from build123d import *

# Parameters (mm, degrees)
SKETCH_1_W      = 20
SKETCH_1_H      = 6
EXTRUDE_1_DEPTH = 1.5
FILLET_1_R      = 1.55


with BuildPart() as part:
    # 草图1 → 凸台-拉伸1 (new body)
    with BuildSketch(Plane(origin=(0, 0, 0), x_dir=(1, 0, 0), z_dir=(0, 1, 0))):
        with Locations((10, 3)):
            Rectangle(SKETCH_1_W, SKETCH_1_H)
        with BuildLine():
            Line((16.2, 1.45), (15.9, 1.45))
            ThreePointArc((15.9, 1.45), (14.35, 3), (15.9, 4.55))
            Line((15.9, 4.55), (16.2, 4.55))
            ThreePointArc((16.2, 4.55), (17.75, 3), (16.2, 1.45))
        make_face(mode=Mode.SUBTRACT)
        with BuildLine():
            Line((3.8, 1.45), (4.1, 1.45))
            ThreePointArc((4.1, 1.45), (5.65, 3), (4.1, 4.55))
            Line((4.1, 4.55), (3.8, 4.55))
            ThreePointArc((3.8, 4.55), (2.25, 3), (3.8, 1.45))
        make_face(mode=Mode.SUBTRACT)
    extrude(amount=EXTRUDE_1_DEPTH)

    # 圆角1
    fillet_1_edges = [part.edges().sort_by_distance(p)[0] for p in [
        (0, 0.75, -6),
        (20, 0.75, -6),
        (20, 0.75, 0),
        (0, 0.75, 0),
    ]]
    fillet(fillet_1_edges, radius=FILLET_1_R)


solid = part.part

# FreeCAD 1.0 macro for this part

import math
import FreeCAD as App
import Part
import Sketcher

V = App.Vector
Q = App.Units.Quantity


def edges_at(feature, points):
    """Names of the edges that pass closest to the given points."""
    edges = feature.Shape.Edges
    near = lambda p: min(range(len(edges)), key=lambda i: edges[i].distToShape(Part.Vertex(*p))[0])
    return sorted({f"Edge{near(p) + 1}" for p in points})

doc = App.newDocument("Part")
body = doc.addObject("PartDesign::Body", "Body")

# Sketch on XZ plane
sketch1 = body.newObject("Sketcher::SketchObject", "Sketch")
sketch1.AttachmentSupport = (doc.getObject("XZ_Plane"), [""])
sketch1.MapMode = "FlatFace"
sketch1.addGeometry([
    Part.LineSegment(V(0, -6, 0), V(0, 0, 0)),  # 0
    Part.LineSegment(V(0, 0, 0), V(20, 0, 0)),  # 1
    Part.LineSegment(V(20, 0, 0), V(20, -6, 0)),  # 2
    Part.LineSegment(V(20, -6, 0), V(0, -6, 0)),  # 3
    Part.LineSegment(V(4.1, -1.45, 0), V(3.8, -1.45, 0)),  # 4
    Part.ArcOfCircle(Part.Circle(V(3.8, -3, 0), V(0, 0, 1), 1.55), math.radians(90), math.radians(270)),  # 5
    Part.LineSegment(V(3.8, -4.55, 0), V(4.1, -4.55, 0)),  # 6
    Part.ArcOfCircle(Part.Circle(V(4.1, -3, 0), V(0, 0, 1), 1.55), math.radians(-90), math.radians(90)),  # 7
    Part.ArcOfCircle(Part.Circle(V(16.2, -3, 0), V(0, 0, 1), 1.55), math.radians(-90), math.radians(90)),  # 8
    Part.LineSegment(V(16.2, -1.45, 0), V(15.9, -1.45, 0)),  # 9
    Part.ArcOfCircle(Part.Circle(V(15.9, -3, 0), V(0, 0, 1), 1.55), math.radians(90), math.radians(270)),  # 10
    Part.LineSegment(V(15.9, -4.55, 0), V(16.2, -4.55, 0)),  # 11
], False)
sketch1.addConstraint([
    Sketcher.Constraint("Coincident", 0, 2, 1, 1),
    Sketcher.Constraint("Coincident", 1, 2, 2, 1),
    Sketcher.Constraint("Coincident", 2, 2, 3, 1),
    Sketcher.Constraint("Coincident", 3, 2, 0, 1),
    Sketcher.Constraint("Tangent", 4, 2, 5, 1),
    Sketcher.Constraint("Tangent", 5, 2, 6, 1),
    Sketcher.Constraint("Tangent", 6, 2, 7, 1),
    Sketcher.Constraint("Tangent", 7, 2, 4, 1),
    Sketcher.Constraint("Tangent", 8, 2, 9, 1),
    Sketcher.Constraint("Tangent", 9, 2, 10, 1),
    Sketcher.Constraint("Tangent", 10, 2, 11, 1),
    Sketcher.Constraint("Tangent", 11, 2, 8, 1),
    Sketcher.Constraint("Vertical", 0),
    Sketcher.Constraint("Horizontal", 1),
    Sketcher.Constraint("Vertical", 2),
    Sketcher.Constraint("Horizontal", 3),
    Sketcher.Constraint("Horizontal", 4),
    Sketcher.Constraint("Horizontal", 6),
    Sketcher.Constraint("Horizontal", 9),
    Sketcher.Constraint("Horizontal", 11),
    Sketcher.Constraint("Coincident", 0, 2, -1, 1),
    Sketcher.Constraint("Equal", 7, 8),
    Sketcher.Constraint("Horizontal", 7, 3, 8, 3),
    Sketcher.Constraint("Equal", 6, 9),
    Sketcher.Constraint("DistanceX", 1, 1, 1, 2, Q("20 mm")),
    Sketcher.Constraint("DistanceY", 0, 1, 0, 2, Q("6 mm")),
    Sketcher.Constraint("Radius", 5, Q("1.55 mm")),
    Sketcher.Constraint("DistanceX", 4, 2, 4, 1, Q("0.3 mm")),
    Sketcher.Constraint("DistanceY", 5, 3, -1, 1, Q("3 mm")),
    Sketcher.Constraint("DistanceX", -1, 1, 5, 3, Q("3.8 mm")),
    Sketcher.Constraint("DistanceX", -1, 1, 8, 3, Q("16.2 mm")),
])
pad1 = body.newObject("PartDesign::Pad", "Pad")
pad1.Profile = sketch1
pad1.Length = 1.5
pad1.Reversed = True
doc.recompute()

fillet = body.newObject("PartDesign::Fillet", "Fillet")
fillet.Base = (pad1, edges_at(pad1, [
    (0, 0.75, -6),
    (20, 0.75, -6),
    (20, 0.75, 0),
    (0, 0.75, 0),
]))
fillet.Radius = 1.55

doc.recompute()
